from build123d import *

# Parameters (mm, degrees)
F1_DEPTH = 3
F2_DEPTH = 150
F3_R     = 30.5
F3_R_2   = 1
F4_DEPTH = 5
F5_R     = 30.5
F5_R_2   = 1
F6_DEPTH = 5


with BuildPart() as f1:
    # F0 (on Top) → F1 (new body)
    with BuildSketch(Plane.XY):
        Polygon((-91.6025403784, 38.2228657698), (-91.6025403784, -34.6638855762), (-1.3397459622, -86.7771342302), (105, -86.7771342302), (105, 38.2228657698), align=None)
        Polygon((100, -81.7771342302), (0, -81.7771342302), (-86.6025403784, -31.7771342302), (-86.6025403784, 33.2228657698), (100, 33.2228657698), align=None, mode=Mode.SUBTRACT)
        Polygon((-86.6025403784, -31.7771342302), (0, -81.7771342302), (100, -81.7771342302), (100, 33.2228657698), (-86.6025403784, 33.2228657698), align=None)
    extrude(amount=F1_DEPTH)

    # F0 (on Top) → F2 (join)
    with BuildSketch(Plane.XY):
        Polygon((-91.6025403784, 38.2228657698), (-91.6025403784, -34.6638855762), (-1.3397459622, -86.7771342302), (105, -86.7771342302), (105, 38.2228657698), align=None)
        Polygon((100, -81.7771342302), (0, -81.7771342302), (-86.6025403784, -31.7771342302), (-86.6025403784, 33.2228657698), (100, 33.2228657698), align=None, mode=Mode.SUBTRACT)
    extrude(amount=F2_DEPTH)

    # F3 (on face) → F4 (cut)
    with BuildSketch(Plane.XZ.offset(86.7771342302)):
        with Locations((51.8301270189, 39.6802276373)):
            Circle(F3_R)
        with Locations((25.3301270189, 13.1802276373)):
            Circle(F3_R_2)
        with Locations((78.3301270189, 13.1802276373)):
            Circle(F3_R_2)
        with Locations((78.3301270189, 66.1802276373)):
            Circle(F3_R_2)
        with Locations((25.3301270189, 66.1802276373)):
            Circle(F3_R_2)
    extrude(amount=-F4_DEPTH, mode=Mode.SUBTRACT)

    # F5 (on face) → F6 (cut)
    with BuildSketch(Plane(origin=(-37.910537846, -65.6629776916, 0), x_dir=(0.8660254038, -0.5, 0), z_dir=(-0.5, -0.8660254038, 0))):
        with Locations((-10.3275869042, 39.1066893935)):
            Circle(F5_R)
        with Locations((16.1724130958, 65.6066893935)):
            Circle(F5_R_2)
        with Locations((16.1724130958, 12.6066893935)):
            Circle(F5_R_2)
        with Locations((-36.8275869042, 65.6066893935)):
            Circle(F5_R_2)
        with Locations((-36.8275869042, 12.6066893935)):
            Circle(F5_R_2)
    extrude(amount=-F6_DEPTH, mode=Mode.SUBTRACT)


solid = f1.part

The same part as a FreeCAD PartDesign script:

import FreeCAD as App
import Part
import Sketcher
Q = App.Units.Quantity


def add_polygon(sketch, points):
    """Adds a closed chain of lines whose ends are joined by coincident constraints."""
    first, n = sketch.GeometryCount, len(points)
    for a, b in zip(points, points[1:] + points[:1]):
        sketch.addGeometry(Part.LineSegment(App.Vector(*a, 0), App.Vector(*b, 0)), False)
    for i in range(n):
        sketch.addConstraint(Sketcher.Constraint("Coincident", first + i, 2, first + (i + 1) % n, 1))

doc = App.newDocument("Part")
body = doc.addObject("PartDesign::Body", "Body")

sketch1 = body.newObject("Sketcher::SketchObject", "Sketch")
sketch1.AttachmentSupport = (doc.getObject("XY_Plane"), [""])
sketch1.MapMode = "FlatFace"
add_polygon(sketch1, [(-92, 38), (-92, -35), (-1, -87), (105, -87), (105, 38)])
sketch1.addConstraint(Sketcher.Constraint("Vertical", 0))
sketch1.addConstraint(Sketcher.Constraint("Horizontal", 2))
sketch1.addConstraint(Sketcher.Constraint("Vertical", 3))
sketch1.addConstraint(Sketcher.Constraint("Horizontal", 4))
sketch1.addConstraint(Sketcher.Constraint("DistanceY", 3, 1, 3, 2, 125.0))
sketch1.addConstraint(Sketcher.Constraint("Angle", 1, Q("-30 deg")))
sketch1.addConstraint(Sketcher.Constraint("DistanceX", -1, 1, 2, 2, 105.0))
sketch1.addConstraint(Sketcher.Constraint("DistanceX", 4, 2, 4, 1, 196.60254))
sketch1.addConstraint(Sketcher.Constraint("DistanceY", 0, 2, 0, 1, 72.886751))
sketch1.addConstraint(Sketcher.Constraint("DistanceY", 0, 2, -1, 1, 34.663886))
pad1 = body.newObject("PartDesign::Pad", "Pad")
pad1.Profile = sketch1
pad1.Length = 3

sketch2 = body.newObject("Sketcher::SketchObject", "Sketch001")
sketch2.AttachmentSupport = (doc.getObject("XY_Plane"), [""])
sketch2.MapMode = "FlatFace"
add_polygon(sketch2, [(-92, 38), (-92, -35), (-1, -87), (105, -87), (105, 38)])
add_polygon(sketch2, [(100, 33), (100, -82), (0, -82), (-87, -32), (-87, 33)])
sketch2.addConstraint(Sketcher.Constraint("Vertical", 0))
sketch2.addConstraint(Sketcher.Constraint("Horizontal", 2))
sketch2.addConstraint(Sketcher.Constraint("Vertical", 3))
sketch2.addConstraint(Sketcher.Constraint("Horizontal", 4))
sketch2.addConstraint(Sketcher.Constraint("Vertical", 5))
sketch2.addConstraint(Sketcher.Constraint("Horizontal", 6))
sketch2.addConstraint(Sketcher.Constraint("Vertical", 8))
sketch2.addConstraint(Sketcher.Constraint("Horizontal", 9))
sketch2.addConstraint(Sketcher.Constraint("PointOnObject", 6, 2, -2))
sketch2.addConstraint(Sketcher.Constraint("Parallel", 1, 7))
sketch2.addConstraint(Sketcher.Constraint("DistanceX", 6, 2, 6, 1, 100.0))
sketch2.addConstraint(Sketcher.Constraint("DistanceY", 3, 1, 3, 2, 125.0))
sketch2.addConstraint(Sketcher.Constraint("DistanceY", 5, 2, 5, 1, 115.0))
sketch2.addConstraint(Sketcher.Constraint("DistanceY", 8, 1, 8, 2, 65.0))
sketch2.addConstraint(Sketcher.Constraint("Angle", 1, Q("-30 deg")))
sketch2.addConstraint(Sketcher.Constraint("DistanceX", -1, 1, 2, 2, 105.0))
sketch2.addConstraint(Sketcher.Constraint("DistanceY", 2, 2, 5, 2, 5.0))
sketch2.addConstraint(Sketcher.Constraint("DistanceX", 0, 2, 7, 2, 5.0))
sketch2.addConstraint(Sketcher.Constraint("DistanceY", 0, 2, 0, 1, 72.886751))
sketch2.addConstraint(Sketcher.Constraint("DistanceY", 0, 2, -1, 1, 34.663886))
pad2 = body.newObject("PartDesign::Pad", "Pad001")
pad2.Profile = sketch2
pad2.Length = 150

sketch3 = body.newObject("Sketcher::SketchObject", "Sketch002")
sketch3.AttachmentSupport = (doc.getObject("XZ_Plane"), [""])
sketch3.MapMode = "FlatFace"
sketch3.AttachmentOffset = App.Placement(App.Vector(0, 0, 86.777134), App.Rotation())
sketch3.addGeometry(Part.Circle(App.Vector(51.8, 39.7, 0), App.Vector(0, 0, 1), 30.5), False)
sketch3.addGeometry(Part.Circle(App.Vector(25.3, 13.2, 0), App.Vector(0, 0, 1), 1), False)
sketch3.addGeometry(Part.Circle(App.Vector(78.3, 13.2, 0), App.Vector(0, 0, 1), 1), False)
sketch3.addGeometry(Part.Circle(App.Vector(78.3, 66.2, 0), App.Vector(0, 0, 1), 1), False)
sketch3.addGeometry(Part.Circle(App.Vector(25.3, 66.2, 0), App.Vector(0, 0, 1), 1), False)
sketch3.addConstraint(Sketcher.Constraint("Equal", 1, 2))
sketch3.addConstraint(Sketcher.Constraint("Equal", 2, 3))
sketch3.addConstraint(Sketcher.Constraint("Equal", 3, 4))
sketch3.addConstraint(Sketcher.Constraint("Horizontal", 1, 3, 2, 3))
sketch3.addConstraint(Sketcher.Constraint("Horizontal", 3, 3, 4, 3))
sketch3.addConstraint(Sketcher.Constraint("Vertical", 2, 3, 3, 3))
sketch3.addConstraint(Sketcher.Constraint("Vertical", 1, 3, 4, 3))
sketch3.addConstraint(Sketcher.Constraint("Diameter", 0, 61.0))
sketch3.addConstraint(Sketcher.Constraint("Diameter", 1, 2.0))
sketch3.addConstraint(Sketcher.Constraint("DistanceX", 1, 3, 2, 3, 53.0))
sketch3.addConstraint(Sketcher.Constraint("DistanceY", 2, 3, 3, 3, 53.0))
sketch3.addConstraint(Sketcher.Constraint("DistanceX", 1, 3, 0, 3, 26.5))
sketch3.addConstraint(Sketcher.Constraint("DistanceY", 1, 3, 0, 3, 26.5))
sketch3.addConstraint(Sketcher.Constraint("DistanceX", -1, 1, 0, 3, 51.830127))
sketch3.addConstraint(Sketcher.Constraint("DistanceY", -1, 1, 0, 3, 39.680228))
pocket1 = body.newObject("PartDesign::Pocket", "Pocket")
pocket1.Profile = sketch3
pocket1.Length = 5

sketch4 = body.newObject("Sketcher::SketchObject", "Sketch003")
sketch4.Placement = App.Placement(App.Vector(-37.910538, -65.662978, 0), App.Rotation(App.Vector(0.866025404, -0.5, 0), App.Vector(0, 0, 1), App.Vector(-0.5, -0.866025404, 0), "ZXY"))
sketch4.addGeometry(Part.Circle(App.Vector(-10.3, 39.1, 0), App.Vector(0, 0, 1), 30.5), False)
sketch4.addGeometry(Part.Circle(App.Vector(16.2, 65.6, 0), App.Vector(0, 0, 1), 1), False)
sketch4.addGeometry(Part.Circle(App.Vector(16.2, 12.6, 0), App.Vector(0, 0, 1), 1), False)
sketch4.addGeometry(Part.Circle(App.Vector(-36.8, 65.6, 0), App.Vector(0, 0, 1), 1), False)
sketch4.addGeometry(Part.Circle(App.Vector(-36.8, 12.6, 0), App.Vector(0, 0, 1), 1), False)
sketch4.addConstraint(Sketcher.Constraint("Equal", 1, 2))
sketch4.addConstraint(Sketcher.Constraint("Equal", 2, 3))
sketch4.addConstraint(Sketcher.Constraint("Equal", 3, 4))
sketch4.addConstraint(Sketcher.Constraint("Horizontal", 1, 3, 3, 3))
sketch4.addConstraint(Sketcher.Constraint("Horizontal", 2, 3, 4, 3))
sketch4.addConstraint(Sketcher.Constraint("Vertical", 1, 3, 2, 3))
sketch4.addConstraint(Sketcher.Constraint("Vertical", 3, 3, 4, 3))
sketch4.addConstraint(Sketcher.Constraint("Diameter", 0, 61.0))
sketch4.addConstraint(Sketcher.Constraint("Diameter", 1, 2.0))
sketch4.addConstraint(Sketcher.Constraint("DistanceY", 2, 3, 1, 3, 53.0))
sketch4.addConstraint(Sketcher.Constraint("DistanceX", 3, 3, 1, 3, 53.0))
sketch4.addConstraint(Sketcher.Constraint("DistanceX", 0, 3, 1, 3, 26.5))
sketch4.addConstraint(Sketcher.Constraint("DistanceY", 0, 3, 1, 3, 26.5))
sketch4.addConstraint(Sketcher.Constraint("DistanceY", -1, 1, 0, 3, 39.106689))
sketch4.addConstraint(Sketcher.Constraint("DistanceX", 0, 3, -1, 1, 10.327587))
pocket2 = body.newObject("PartDesign::Pocket", "Pocket001")
pocket2.Profile = sketch4
pocket2.Length = 5

doc.recompute()
